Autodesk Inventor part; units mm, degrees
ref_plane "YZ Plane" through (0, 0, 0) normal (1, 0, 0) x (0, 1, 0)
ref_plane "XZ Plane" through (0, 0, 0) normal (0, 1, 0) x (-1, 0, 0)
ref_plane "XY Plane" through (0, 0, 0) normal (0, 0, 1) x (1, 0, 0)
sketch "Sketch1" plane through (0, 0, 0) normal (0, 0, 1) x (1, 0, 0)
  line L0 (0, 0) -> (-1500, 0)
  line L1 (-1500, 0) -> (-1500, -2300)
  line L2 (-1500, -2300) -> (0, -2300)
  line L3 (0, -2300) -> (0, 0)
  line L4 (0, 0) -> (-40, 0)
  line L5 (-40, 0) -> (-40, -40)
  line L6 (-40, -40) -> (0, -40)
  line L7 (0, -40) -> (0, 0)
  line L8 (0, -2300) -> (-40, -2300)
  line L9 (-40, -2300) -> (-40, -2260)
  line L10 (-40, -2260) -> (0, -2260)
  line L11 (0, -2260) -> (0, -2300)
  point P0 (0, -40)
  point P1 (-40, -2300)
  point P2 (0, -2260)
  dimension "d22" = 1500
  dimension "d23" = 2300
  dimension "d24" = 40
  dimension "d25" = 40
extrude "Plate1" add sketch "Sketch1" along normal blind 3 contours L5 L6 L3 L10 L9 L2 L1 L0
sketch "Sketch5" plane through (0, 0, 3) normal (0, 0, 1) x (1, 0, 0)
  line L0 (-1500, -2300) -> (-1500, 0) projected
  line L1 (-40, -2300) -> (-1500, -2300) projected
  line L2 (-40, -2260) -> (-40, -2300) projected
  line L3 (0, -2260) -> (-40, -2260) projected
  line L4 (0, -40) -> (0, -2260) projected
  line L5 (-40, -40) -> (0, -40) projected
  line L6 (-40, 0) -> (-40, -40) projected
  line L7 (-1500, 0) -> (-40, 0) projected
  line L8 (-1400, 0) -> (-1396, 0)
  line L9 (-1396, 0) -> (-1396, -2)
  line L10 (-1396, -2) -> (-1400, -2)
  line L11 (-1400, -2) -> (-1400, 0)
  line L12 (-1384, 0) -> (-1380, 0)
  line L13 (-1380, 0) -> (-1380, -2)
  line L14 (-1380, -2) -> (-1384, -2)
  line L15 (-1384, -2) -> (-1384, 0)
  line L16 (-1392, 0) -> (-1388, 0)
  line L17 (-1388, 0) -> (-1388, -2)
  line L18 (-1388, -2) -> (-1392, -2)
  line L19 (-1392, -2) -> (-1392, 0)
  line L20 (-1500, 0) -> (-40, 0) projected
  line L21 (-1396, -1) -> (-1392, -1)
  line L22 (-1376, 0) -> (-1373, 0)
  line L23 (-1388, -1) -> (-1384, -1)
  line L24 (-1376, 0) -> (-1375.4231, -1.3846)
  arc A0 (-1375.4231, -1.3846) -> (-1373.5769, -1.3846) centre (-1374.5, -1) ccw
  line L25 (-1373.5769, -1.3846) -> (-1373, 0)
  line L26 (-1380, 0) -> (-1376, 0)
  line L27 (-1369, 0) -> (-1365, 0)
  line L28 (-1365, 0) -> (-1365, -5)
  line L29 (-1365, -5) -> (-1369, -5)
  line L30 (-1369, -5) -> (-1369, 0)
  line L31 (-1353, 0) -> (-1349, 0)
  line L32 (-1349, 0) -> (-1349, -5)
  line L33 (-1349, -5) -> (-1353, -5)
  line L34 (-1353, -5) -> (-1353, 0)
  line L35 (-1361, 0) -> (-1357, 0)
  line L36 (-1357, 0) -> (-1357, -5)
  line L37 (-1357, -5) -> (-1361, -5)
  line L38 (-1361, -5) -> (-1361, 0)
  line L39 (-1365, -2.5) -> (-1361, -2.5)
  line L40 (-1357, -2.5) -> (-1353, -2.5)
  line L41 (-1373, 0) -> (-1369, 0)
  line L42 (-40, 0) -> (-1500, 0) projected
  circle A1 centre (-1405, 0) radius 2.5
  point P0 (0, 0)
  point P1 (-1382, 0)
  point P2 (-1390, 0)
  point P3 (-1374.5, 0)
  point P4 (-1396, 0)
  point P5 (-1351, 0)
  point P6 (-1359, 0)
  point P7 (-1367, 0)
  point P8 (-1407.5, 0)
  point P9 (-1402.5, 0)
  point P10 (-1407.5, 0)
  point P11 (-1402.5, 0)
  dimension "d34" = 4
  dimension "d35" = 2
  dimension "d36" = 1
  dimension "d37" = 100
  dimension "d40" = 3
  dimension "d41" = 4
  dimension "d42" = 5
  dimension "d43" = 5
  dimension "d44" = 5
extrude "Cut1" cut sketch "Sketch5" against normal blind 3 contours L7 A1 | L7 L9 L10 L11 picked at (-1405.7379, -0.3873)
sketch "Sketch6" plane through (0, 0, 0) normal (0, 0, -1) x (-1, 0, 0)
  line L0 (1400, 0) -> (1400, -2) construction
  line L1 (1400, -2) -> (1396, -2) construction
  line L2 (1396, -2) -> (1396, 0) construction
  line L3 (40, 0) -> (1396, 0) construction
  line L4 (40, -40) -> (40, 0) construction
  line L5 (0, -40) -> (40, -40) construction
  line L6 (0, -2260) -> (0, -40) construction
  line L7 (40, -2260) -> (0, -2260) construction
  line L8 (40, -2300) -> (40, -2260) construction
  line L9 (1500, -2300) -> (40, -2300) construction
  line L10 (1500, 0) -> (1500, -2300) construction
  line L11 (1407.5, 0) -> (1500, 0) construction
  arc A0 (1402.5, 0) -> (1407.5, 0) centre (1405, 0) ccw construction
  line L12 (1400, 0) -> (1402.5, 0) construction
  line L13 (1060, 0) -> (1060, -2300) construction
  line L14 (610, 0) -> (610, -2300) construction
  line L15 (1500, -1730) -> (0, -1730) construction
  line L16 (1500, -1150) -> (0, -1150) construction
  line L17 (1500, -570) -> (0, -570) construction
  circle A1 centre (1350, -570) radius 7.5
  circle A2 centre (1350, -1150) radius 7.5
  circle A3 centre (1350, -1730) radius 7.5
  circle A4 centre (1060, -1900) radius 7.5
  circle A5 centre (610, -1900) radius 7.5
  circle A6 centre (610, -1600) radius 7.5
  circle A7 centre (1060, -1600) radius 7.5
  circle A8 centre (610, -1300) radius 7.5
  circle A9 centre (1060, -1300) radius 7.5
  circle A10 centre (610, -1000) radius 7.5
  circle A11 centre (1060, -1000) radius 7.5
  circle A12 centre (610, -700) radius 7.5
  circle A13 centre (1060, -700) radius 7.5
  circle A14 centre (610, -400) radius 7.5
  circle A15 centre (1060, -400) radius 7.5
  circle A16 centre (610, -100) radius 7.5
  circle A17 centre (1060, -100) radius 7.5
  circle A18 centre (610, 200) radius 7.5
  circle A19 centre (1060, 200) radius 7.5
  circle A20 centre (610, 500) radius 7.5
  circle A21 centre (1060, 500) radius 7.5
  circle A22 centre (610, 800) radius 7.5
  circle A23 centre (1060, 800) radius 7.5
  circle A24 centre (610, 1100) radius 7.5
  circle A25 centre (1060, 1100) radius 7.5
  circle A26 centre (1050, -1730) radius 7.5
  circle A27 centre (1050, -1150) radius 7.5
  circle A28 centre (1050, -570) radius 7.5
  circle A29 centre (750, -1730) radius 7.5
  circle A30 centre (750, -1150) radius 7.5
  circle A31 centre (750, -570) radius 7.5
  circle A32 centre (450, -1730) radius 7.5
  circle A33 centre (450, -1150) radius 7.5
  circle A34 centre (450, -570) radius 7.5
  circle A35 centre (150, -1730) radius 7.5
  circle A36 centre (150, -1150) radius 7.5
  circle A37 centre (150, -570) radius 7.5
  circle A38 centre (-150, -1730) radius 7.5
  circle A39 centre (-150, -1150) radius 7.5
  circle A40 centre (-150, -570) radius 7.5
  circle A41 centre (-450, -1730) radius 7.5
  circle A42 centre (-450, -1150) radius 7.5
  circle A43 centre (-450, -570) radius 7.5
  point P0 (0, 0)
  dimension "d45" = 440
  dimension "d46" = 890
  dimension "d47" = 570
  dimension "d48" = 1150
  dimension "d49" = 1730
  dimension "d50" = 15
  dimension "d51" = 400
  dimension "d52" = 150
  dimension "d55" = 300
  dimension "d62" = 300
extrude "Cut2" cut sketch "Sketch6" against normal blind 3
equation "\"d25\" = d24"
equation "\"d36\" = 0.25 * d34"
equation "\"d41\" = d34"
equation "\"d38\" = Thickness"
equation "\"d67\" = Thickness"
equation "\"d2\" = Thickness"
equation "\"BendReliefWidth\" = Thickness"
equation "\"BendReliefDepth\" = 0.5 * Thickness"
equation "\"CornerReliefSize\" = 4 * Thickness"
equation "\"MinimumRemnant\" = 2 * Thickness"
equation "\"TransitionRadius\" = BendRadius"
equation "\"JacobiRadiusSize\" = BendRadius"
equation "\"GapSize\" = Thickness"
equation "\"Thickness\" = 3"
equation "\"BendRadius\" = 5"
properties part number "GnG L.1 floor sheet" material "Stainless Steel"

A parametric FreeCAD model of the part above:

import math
import FreeCAD as App
import Part
import Sketcher

doc = App.newDocument("Part")
params = doc.addObject("Spreadsheet::Sheet", "Params")
for row, (alias, value) in enumerate([
    ("sketch1_width", "40 mm"),
    ("sketch1_height", "2300 mm"),
    ("pad1_length", "3 mm"),
    ("sketch2_radius", "2.5 mm"),
    ("sketch2_width", "4 mm"),
    ("sketch2_height", "2 mm"),
    ("pocket1_length", "3 mm"),
    ("sketch3_diameter", "15 mm"),
    ("pocket2_length", "3 mm"),
], start=1):
    params.set(f"A{row}", alias)
    params.set(f"B{row}", "=" + value)
    params.setAlias(f"B{row}", alias)

body = doc.addObject("PartDesign::Body", "Body")

# Sketch on XY plane
sketch1 = body.newObject("Sketcher::SketchObject", "Sketch")
sketch1.AttachmentSupport = (doc.getObject("XY_Plane"), [""])
sketch1.MapMode = "FlatFace"
sketch1.addGeometry(Part.LineSegment(App.Vector(-40, -40, 0), App.Vector(-40, 0, 0)), False)
sketch1.addGeometry(Part.LineSegment(App.Vector(-40, 0, 0), App.Vector(-1500, 0, 0)), False)
sketch1.addGeometry(Part.LineSegment(App.Vector(-1500, 0, 0), App.Vector(-1500, -2300, 0)), False)
sketch1.addGeometry(Part.LineSegment(App.Vector(-1500, -2300, 0), App.Vector(-40, -2300, 0)), False)
sketch1.addGeometry(Part.LineSegment(App.Vector(-40, -2300, 0), App.Vector(-40, -2260, 0)), False)
sketch1.addGeometry(Part.LineSegment(App.Vector(-40, -2260, 0), App.Vector(0, -2260, 0)), False)
sketch1.addGeometry(Part.LineSegment(App.Vector(0, -2260, 0), App.Vector(0, -40, 0)), False)
sketch1.addGeometry(Part.LineSegment(App.Vector(0, -40, 0), App.Vector(-40, -40, 0)), False)
sketch1.addConstraint(Sketcher.Constraint("Coincident", 0, 2, 1, 1))
sketch1.addConstraint(Sketcher.Constraint("Coincident", 1, 2, 2, 1))
sketch1.addConstraint(Sketcher.Constraint("Coincident", 2, 2, 3, 1))
sketch1.addConstraint(Sketcher.Constraint("Coincident", 3, 2, 4, 1))
sketch1.addConstraint(Sketcher.Constraint("Coincident", 4, 2, 5, 1))
sketch1.addConstraint(Sketcher.Constraint("Coincident", 5, 2, 6, 1))
sketch1.addConstraint(Sketcher.Constraint("Coincident", 6, 2, 7, 1))
sketch1.addConstraint(Sketcher.Constraint("Coincident", 7, 2, 0, 1))
sketch1.addConstraint(Sketcher.Constraint("Vertical", 0))
sketch1.addConstraint(Sketcher.Constraint("Horizontal", 1))
sketch1.addConstraint(Sketcher.Constraint("Vertical", 2))
sketch1.addConstraint(Sketcher.Constraint("Horizontal", 3))
sketch1.addConstraint(Sketcher.Constraint("Vertical", 4))
sketch1.addConstraint(Sketcher.Constraint("Horizontal", 5))
sketch1.addConstraint(Sketcher.Constraint("Vertical", 6))
sketch1.addConstraint(Sketcher.Constraint("Horizontal", 7))
sketch1.addConstraint(Sketcher.Constraint("PointOnObject", 0, 2, -1))
sketch1.addConstraint(Sketcher.Constraint("PointOnObject", 5, 2, -2))
sketch1.addConstraint(Sketcher.Constraint("Vertical", 0, 2, 3, 2))
sketch1.addConstraint(Sketcher.Constraint("Equal", 7, 0))
sketch1.addConstraint(Sketcher.Constraint("Equal", 0, 4))
sketch1.addConstraint(Sketcher.Constraint("DistanceX", 5, 1, 5, 2, 40.0))
sketch1.addConstraint(Sketcher.Constraint("DistanceY", 2, 2, 2, 1, 2300.0))
sketch1.addConstraint(Sketcher.Constraint("DistanceX", 1, 2, -1, 1, 1500.0))
sketch1.setExpression("Constraints[21]", "Params.sketch1_width")
sketch1.setExpression("Constraints[22]", "Params.sketch1_height")
pad1 = body.newObject("PartDesign::Pad", "Pad")
pad1.Profile = sketch1
pad1.setExpression("Length", "Params.pad1_length")

# Sketch on XY plane
sketch2 = body.newObject("Sketcher::SketchObject", "Sketch001")
sketch2.AttachmentSupport = (doc.getObject("XY_Plane"), [""])
sketch2.MapMode = "FlatFace"
sketch2.AttachmentOffset = App.Placement(App.Vector(0, 0, 3), App.Rotation())
sketch2.addGeometry(Part.LineSegment(App.Vector(-1402.5, 0, 0), App.Vector(-1407.5, 0, 0)), False)
sketch2.addGeometry(Part.ArcOfCircle(Part.Circle(App.Vector(-1405, 0, 0), App.Vector(0, 0, 1), 2.5), math.radians(180), math.radians(360)), False)
sketch2.addGeometry(Part.LineSegment(App.Vector(-1396, 0, 0), App.Vector(-1400, 0, 0)), False)
sketch2.addGeometry(Part.LineSegment(App.Vector(-1400, 0, 0), App.Vector(-1400, -2, 0)), False)
sketch2.addGeometry(Part.LineSegment(App.Vector(-1400, -2, 0), App.Vector(-1396, -2, 0)), False)
sketch2.addGeometry(Part.LineSegment(App.Vector(-1396, -2, 0), App.Vector(-1396, 0, 0)), False)
sketch2.addConstraint(Sketcher.Constraint("Coincident", 0, 1, 1, 2))
sketch2.addConstraint(Sketcher.Constraint("Coincident", 1, 1, 0, 2))
sketch2.addConstraint(Sketcher.Constraint("Coincident", 2, 2, 3, 1))
sketch2.addConstraint(Sketcher.Constraint("Coincident", 3, 2, 4, 1))
sketch2.addConstraint(Sketcher.Constraint("Coincident", 4, 2, 5, 1))
sketch2.addConstraint(Sketcher.Constraint("Coincident", 5, 2, 2, 1))
sketch2.addConstraint(Sketcher.Constraint("Horizontal", 0))
sketch2.addConstraint(Sketcher.Constraint("Horizontal", 2))
sketch2.addConstraint(Sketcher.Constraint("Vertical", 3))
sketch2.addConstraint(Sketcher.Constraint("Horizontal", 4))
sketch2.addConstraint(Sketcher.Constraint("Vertical", 5))
sketch2.addConstraint(Sketcher.Constraint("PointOnObject", 1, 3, -1))
sketch2.addConstraint(Sketcher.Constraint("PointOnObject", 0, 1, -1))
sketch2.addConstraint(Sketcher.Constraint("PointOnObject", 2, 2, -1))
sketch2.addConstraint(Sketcher.Constraint("Radius", 1, 2.5))
sketch2.addConstraint(Sketcher.Constraint("DistanceX", 2, 2, 2, 1, 4.0))
sketch2.addConstraint(Sketcher.Constraint("DistanceY", 3, 2, 3, 1, 2.0))
sketch2.addConstraint(Sketcher.Constraint("DistanceX", 1, 3, 2, 2, 5.0))
sketch2.addConstraint(Sketcher.Constraint("DistanceX", 1, 3, -1, 1, 1405.0))
sketch2.setExpression("Constraints[14]", "Params.sketch2_radius")
sketch2.setExpression("Constraints[15]", "Params.sketch2_width")
sketch2.setExpression("Constraints[16]", "Params.sketch2_height")
pocket1 = body.newObject("PartDesign::Pocket", "Pocket")
pocket1.Profile = sketch2
pocket1.setExpression("Length", "Params.pocket1_length")

# Sketch on XY plane
sketch3 = body.newObject("Sketcher::SketchObject", "Sketch002")
sketch3.AttachmentSupport = (doc.getObject("XY_Plane"), [""])
sketch3.MapMode = "FlatFace"
sketch3.addGeometry(Part.Circle(App.Vector(-1350, -570, 0), App.Vector(0, 0, 1), 7.5), False)
sketch3.addGeometry(Part.Circle(App.Vector(-1350, -1150, 0), App.Vector(0, 0, 1), 7.5), False)
sketch3.addGeometry(Part.Circle(App.Vector(-1350, -1730, 0), App.Vector(0, 0, 1), 7.5), False)
sketch3.addGeometry(Part.Circle(App.Vector(-1060, -1900, 0), App.Vector(0, 0, 1), 7.5), False)
sketch3.addGeometry(Part.Circle(App.Vector(-610, -1900, 0), App.Vector(0, 0, 1), 7.5), False)
sketch3.addGeometry(Part.Circle(App.Vector(-610, -1600, 0), App.Vector(0, 0, 1), 7.5), False)
sketch3.addGeometry(Part.Circle(App.Vector(-1060, -1600, 0), App.Vector(0, 0, 1), 7.5), False)
sketch3.addGeometry(Part.Circle(App.Vector(-610, -1300, 0), App.Vector(0, 0, 1), 7.5), False)
sketch3.addGeometry(Part.Circle(App.Vector(-1060, -1300, 0), App.Vector(0, 0, 1), 7.5), False)
sketch3.addGeometry(Part.Circle(App.Vector(-610, -1000, 0), App.Vector(0, 0, 1), 7.5), False)
sketch3.addGeometry(Part.Circle(App.Vector(-1060, -1000, 0), App.Vector(0, 0, 1), 7.5), False)
sketch3.addGeometry(Part.Circle(App.Vector(-610, -700, 0), App.Vector(0, 0, 1), 7.5), False)
sketch3.addGeometry(Part.Circle(App.Vector(-1060, -700, 0), App.Vector(0, 0, 1), 7.5), False)
sketch3.addGeometry(Part.Circle(App.Vector(-610, -400, 0), App.Vector(0, 0, 1), 7.5), False)
sketch3.addGeometry(Part.Circle(App.Vector(-1060, -400, 0), App.Vector(0, 0, 1), 7.5), False)
sketch3.addGeometry(Part.Circle(App.Vector(-610, -100, 0), App.Vector(0, 0, 1), 7.5), False)
sketch3.addGeometry(Part.Circle(App.Vector(-1060, -100, 0), App.Vector(0, 0, 1), 7.5), False)
sketch3.addGeometry(Part.Circle(App.Vector(-610, 200, 0), App.Vector(0, 0, 1), 7.5), False)
sketch3.addGeometry(Part.Circle(App.Vector(-1060, 200, 0), App.Vector(0, 0, 1), 7.5), False)
sketch3.addGeometry(Part.Circle(App.Vector(-610, 500, 0), App.Vector(0, 0, 1), 7.5), False)
sketch3.addGeometry(Part.Circle(App.Vector(-1060, 500, 0), App.Vector(0, 0, 1), 7.5), False)
sketch3.addGeometry(Part.Circle(App.Vector(-610, 800, 0), App.Vector(0, 0, 1), 7.5), False)
sketch3.addGeometry(Part.Circle(App.Vector(-1060, 800, 0), App.Vector(0, 0, 1), 7.5), False)
sketch3.addGeometry(Part.Circle(App.Vector(-610, 1100, 0), App.Vector(0, 0, 1), 7.5), False)
sketch3.addGeometry(Part.Circle(App.Vector(-1060, 1100, 0), App.Vector(0, 0, 1), 7.5), False)
sketch3.addGeometry(Part.Circle(App.Vector(-1050, -1730, 0), App.Vector(0, 0, 1), 7.5), False)
sketch3.addGeometry(Part.Circle(App.Vector(-1050, -1150, 0), App.Vector(0, 0, 1), 7.5), False)
sketch3.addGeometry(Part.Circle(App.Vector(-1050, -570, 0), App.Vector(0, 0, 1), 7.5), False)
sketch3.addGeometry(Part.Circle(App.Vector(-750, -1730, 0), App.Vector(0, 0, 1), 7.5), False)
sketch3.addGeometry(Part.Circle(App.Vector(-750, -1150, 0), App.Vector(0, 0, 1), 7.5), False)
sketch3.addGeometry(Part.Circle(App.Vector(-750, -570, 0), App.Vector(0, 0, 1), 7.5), False)
sketch3.addGeometry(Part.Circle(App.Vector(-450, -1730, 0), App.Vector(0, 0, 1), 7.5), False)
sketch3.addGeometry(Part.Circle(App.Vector(-450, -1150, 0), App.Vector(0, 0, 1), 7.5), False)
sketch3.addGeometry(Part.Circle(App.Vector(-450, -570, 0), App.Vector(0, 0, 1), 7.5), False)
sketch3.addGeometry(Part.Circle(App.Vector(-150, -1730, 0), App.Vector(0, 0, 1), 7.5), False)
sketch3.addGeometry(Part.Circle(App.Vector(-150, -1150, 0), App.Vector(0, 0, 1), 7.5), False)
sketch3.addGeometry(Part.Circle(App.Vector(-150, -570, 0), App.Vector(0, 0, 1), 7.5), False)
sketch3.addGeometry(Part.Circle(App.Vector(150, -1730, 0), App.Vector(0, 0, 1), 7.5), False)
sketch3.addGeometry(Part.Circle(App.Vector(150, -1150, 0), App.Vector(0, 0, 1), 7.5), False)
sketch3.addGeometry(Part.Circle(App.Vector(150, -570, 0), App.Vector(0, 0, 1), 7.5), False)
sketch3.addGeometry(Part.Circle(App.Vector(450, -1730, 0), App.Vector(0, 0, 1), 7.5), False)
sketch3.addGeometry(Part.Circle(App.Vector(450, -1150, 0), App.Vector(0, 0, 1), 7.5), False)
sketch3.addGeometry(Part.Circle(App.Vector(450, -570, 0), App.Vector(0, 0, 1), 7.5), False)
sketch3.addConstraint(Sketcher.Constraint("Equal", 0, 1))
sketch3.addConstraint(Sketcher.Constraint("Equal", 1, 2))
sketch3.addConstraint(Sketcher.Constraint("Equal", 2, 3))
sketch3.addConstraint(Sketcher.Constraint("Equal", 3, 4))
sketch3.addConstraint(Sketcher.Constraint("Equal", 4, 5))
sketch3.addConstraint(Sketcher.Constraint("Equal", 5, 6))
sketch3.addConstraint(Sketcher.Constraint("Equal", 6, 7))
sketch3.addConstraint(Sketcher.Constraint("Equal", 7, 8))
sketch3.addConstraint(Sketcher.Constraint("Equal", 8, 9))
sketch3.addConstraint(Sketcher.Constraint("Equal", 9, 10))
sketch3.addConstraint(Sketcher.Constraint("Equal", 10, 11))
sketch3.addConstraint(Sketcher.Constraint("Equal", 11, 12))
sketch3.addConstraint(Sketcher.Constraint("Equal", 12, 13))
sketch3.addConstraint(Sketcher.Constraint("Equal", 13, 14))
sketch3.addConstraint(Sketcher.Constraint("Equal", 14, 15))
sketch3.addConstraint(Sketcher.Constraint("Equal", 15, 16))
sketch3.addConstraint(Sketcher.Constraint("Equal", 16, 17))
sketch3.addConstraint(Sketcher.Constraint("Equal", 17, 18))
sketch3.addConstraint(Sketcher.Constraint("Equal", 18, 19))
sketch3.addConstraint(Sketcher.Constraint("Equal", 19, 20))
sketch3.addConstraint(Sketcher.Constraint("Equal", 20, 21))
sketch3.addConstraint(Sketcher.Constraint("Equal", 21, 22))
sketch3.addConstraint(Sketcher.Constraint("Equal", 22, 23))
sketch3.addConstraint(Sketcher.Constraint("Equal", 23, 24))
sketch3.addConstraint(Sketcher.Constraint("Equal", 24, 25))
sketch3.addConstraint(Sketcher.Constraint("Equal", 25, 26))
sketch3.addConstraint(Sketcher.Constraint("Equal", 26, 27))
sketch3.addConstraint(Sketcher.Constraint("Equal", 27, 28))
sketch3.addConstraint(Sketcher.Constraint("Equal", 28, 29))
sketch3.addConstraint(Sketcher.Constraint("Equal", 29, 30))
sketch3.addConstraint(Sketcher.Constraint("Equal", 30, 31))
sketch3.addConstraint(Sketcher.Constraint("Equal", 31, 32))
sketch3.addConstraint(Sketcher.Constraint("Equal", 32, 33))
sketch3.addConstraint(Sketcher.Constraint("Equal", 33, 34))
sketch3.addConstraint(Sketcher.Constraint("Equal", 34, 35))
sketch3.addConstraint(Sketcher.Constraint("Equal", 35, 36))
sketch3.addConstraint(Sketcher.Constraint("Equal", 36, 37))
sketch3.addConstraint(Sketcher.Constraint("Equal", 37, 38))
sketch3.addConstraint(Sketcher.Constraint("Equal", 38, 39))
sketch3.addConstraint(Sketcher.Constraint("Equal", 39, 40))
sketch3.addConstraint(Sketcher.Constraint("Equal", 40, 41))
sketch3.addConstraint(Sketcher.Constraint("Equal", 41, 42))
sketch3.addConstraint(Sketcher.Constraint("Symmetric", 34, 3, 37, 3, -2))
sketch3.addConstraint(Sketcher.Constraint("Symmetric", 35, 3, 38, 3, -2))
sketch3.addConstraint(Sketcher.Constraint("Symmetric", 36, 3, 39, 3, -2))
sketch3.addConstraint(Sketcher.Constraint("Symmetric", 31, 3, 40, 3, -2))
sketch3.addConstraint(Sketcher.Constraint("Symmetric", 32, 3, 41, 3, -2))
sketch3.addConstraint(Sketcher.Constraint("Symmetric", 33, 3, 42, 3, -2))
sketch3.addConstraint(Sketcher.Constraint("Horizontal", 3, 3, 4, 3))
sketch3.addConstraint(Sketcher.Constraint("Horizontal", 5, 3, 6, 3))
sketch3.addConstraint(Sketcher.Constraint("Horizontal", 7, 3, 8, 3))
sketch3.addConstraint(Sketcher.Constraint("Horizontal", 9, 3, 10, 3))
sketch3.addConstraint(Sketcher.Constraint("Horizontal", 11, 3, 12, 3))
sketch3.addConstraint(Sketcher.Constraint("Horizontal", 13, 3, 14, 3))
sketch3.addConstraint(Sketcher.Constraint("Horizontal", 15, 3, 16, 3))
sketch3.addConstraint(Sketcher.Constraint("Horizontal", 17, 3, 18, 3))
sketch3.addConstraint(Sketcher.Constraint("Horizontal", 19, 3, 20, 3))
sketch3.addConstraint(Sketcher.Constraint("Horizontal", 21, 3, 22, 3))
sketch3.addConstraint(Sketcher.Constraint("Horizontal", 23, 3, 24, 3))
sketch3.addConstraint(Sketcher.Constraint("Horizontal", 2, 3, 25, 3))
sketch3.addConstraint(Sketcher.Constraint("Horizontal", 1, 3, 26, 3))
sketch3.addConstraint(Sketcher.Constraint("Horizontal", 0, 3, 27, 3))
sketch3.addConstraint(Sketcher.Constraint("Horizontal", 25, 3, 28, 3))
sketch3.addConstraint(Sketcher.Constraint("Horizontal", 26, 3, 29, 3))
sketch3.addConstraint(Sketcher.Constraint("Horizontal", 27, 3, 30, 3))
sketch3.addConstraint(Sketcher.Constraint("Horizontal", 28, 3, 31, 3))
sketch3.addConstraint(Sketcher.Constraint("Horizontal", 29, 3, 32, 3))
sketch3.addConstraint(Sketcher.Constraint("Horizontal", 30, 3, 33, 3))
sketch3.addConstraint(Sketcher.Constraint("Horizontal", 31, 3, 34, 3))
sketch3.addConstraint(Sketcher.Constraint("Horizontal", 32, 3, 35, 3))
sketch3.addConstraint(Sketcher.Constraint("Horizontal", 33, 3, 36, 3))
sketch3.addConstraint(Sketcher.Constraint("Vertical", 0, 3, 1, 3))
sketch3.addConstraint(Sketcher.Constraint("Vertical", 1, 3, 2, 3))
sketch3.addConstraint(Sketcher.Constraint("Vertical", 4, 3, 5, 3))
sketch3.addConstraint(Sketcher.Constraint("Vertical", 3, 3, 6, 3))
sketch3.addConstraint(Sketcher.Constraint("Vertical", 5, 3, 7, 3))
sketch3.addConstraint(Sketcher.Constraint("Vertical", 6, 3, 8, 3))
sketch3.addConstraint(Sketcher.Constraint("Vertical", 7, 3, 9, 3))
sketch3.addConstraint(Sketcher.Constraint("Vertical", 8, 3, 10, 3))
sketch3.addConstraint(Sketcher.Constraint("Vertical", 9, 3, 11, 3))
sketch3.addConstraint(Sketcher.Constraint("Vertical", 10, 3, 12, 3))
sketch3.addConstraint(Sketcher.Constraint("Vertical", 11, 3, 13, 3))
sketch3.addConstraint(Sketcher.Constraint("Vertical", 12, 3, 14, 3))
sketch3.addConstraint(Sketcher.Constraint("Vertical", 13, 3, 15, 3))
sketch3.addConstraint(Sketcher.Constraint("Vertical", 14, 3, 16, 3))
sketch3.addConstraint(Sketcher.Constraint("Vertical", 15, 3, 17, 3))
sketch3.addConstraint(Sketcher.Constraint("Vertical", 16, 3, 18, 3))
sketch3.addConstraint(Sketcher.Constraint("Vertical", 17, 3, 19, 3))
sketch3.addConstraint(Sketcher.Constraint("Vertical", 18, 3, 20, 3))
sketch3.addConstraint(Sketcher.Constraint("Vertical", 19, 3, 21, 3))
sketch3.addConstraint(Sketcher.Constraint("Vertical", 20, 3, 22, 3))
sketch3.addConstraint(Sketcher.Constraint("Vertical", 21, 3, 23, 3))
sketch3.addConstraint(Sketcher.Constraint("Vertical", 22, 3, 24, 3))
sketch3.addConstraint(Sketcher.Constraint("Vertical", 25, 3, 26, 3))
sketch3.addConstraint(Sketcher.Constraint("Vertical", 26, 3, 27, 3))
sketch3.addConstraint(Sketcher.Constraint("Vertical", 28, 3, 29, 3))
sketch3.addConstraint(Sketcher.Constraint("Vertical", 29, 3, 30, 3))
sketch3.addConstraint(Sketcher.Constraint("Vertical", 31, 3, 32, 3))
sketch3.addConstraint(Sketcher.Constraint("Vertical", 32, 3, 33, 3))
sketch3.addConstraint(Sketcher.Constraint("Vertical", 34, 3, 35, 3))
sketch3.addConstraint(Sketcher.Constraint("Vertical", 35, 3, 36, 3))
sketch3.addConstraint(Sketcher.Constraint("Diameter", 0, 15.0))
sketch3.addConstraint(Sketcher.Constraint("DistanceY", 0, 3, -1, 1, 570.0))
sketch3.addConstraint(Sketcher.Constraint("DistanceY", 1, 3, -1, 1, 1150.0))
sketch3.addConstraint(Sketcher.Constraint("DistanceY", 2, 3, -1, 1, 1730.0))
sketch3.addConstraint(Sketcher.Constraint("DistanceY", 13, 3, -1, 1, 400.0))
sketch3.addConstraint(Sketcher.Constraint("DistanceX", 34, 3, -1, 1, 150.0))
sketch3.addConstraint(Sketcher.Constraint("DistanceY", 4, 3, 5, 3, 300.0))
sketch3.addConstraint(Sketcher.Constraint("DistanceY", 5, 3, 7, 3, 300.0))
sketch3.addConstraint(Sketcher.Constraint("DistanceY", 7, 3, 1, 3, 150.0))
sketch3.addConstraint(Sketcher.Constraint("DistanceY", 7, 3, 9, 3, 300.0))
sketch3.addConstraint(Sketcher.Constraint("DistanceY", 9, 3, 11, 3, 300.0))
sketch3.addConstraint(Sketcher.Constraint("DistanceY", 13, 3, 15, 3, 300.0))
sketch3.addConstraint(Sketcher.Constraint("DistanceY", 15, 3, 17, 3, 300.0))
sketch3.addConstraint(Sketcher.Constraint("DistanceY", 17, 3, 19, 3, 300.0))
sketch3.addConstraint(Sketcher.Constraint("DistanceY", 19, 3, 21, 3, 300.0))
sketch3.addConstraint(Sketcher.Constraint("DistanceY", 21, 3, 23, 3, 300.0))
sketch3.addConstraint(Sketcher.Constraint("DistanceX", 2, 3, 25, 3, 300.0))
sketch3.addConstraint(Sketcher.Constraint("DistanceX", 25, 3, 5, 3, 440.0))
sketch3.addConstraint(Sketcher.Constraint("DistanceX", 25, 3, 28, 3, 300.0))
sketch3.addConstraint(Sketcher.Constraint("DistanceX", 28, 3, 31, 3, 300.0))
sketch3.addConstraint(Sketcher.Constraint("DistanceX", 31, 3, 34, 3, 300.0))
sketch3.addConstraint(Sketcher.Constraint("DistanceX", 3, 3, -1, 1, 1060.0))
sketch3.setExpression("Constraints[101]", "Params.sketch3_diameter")
pocket2 = body.newObject("PartDesign::Pocket", "Pocket001")
pocket2.Profile = sketch3
pocket2.setExpression("Length", "Params.pocket2_length")
pocket2.Reversed = True

doc.recompute()
